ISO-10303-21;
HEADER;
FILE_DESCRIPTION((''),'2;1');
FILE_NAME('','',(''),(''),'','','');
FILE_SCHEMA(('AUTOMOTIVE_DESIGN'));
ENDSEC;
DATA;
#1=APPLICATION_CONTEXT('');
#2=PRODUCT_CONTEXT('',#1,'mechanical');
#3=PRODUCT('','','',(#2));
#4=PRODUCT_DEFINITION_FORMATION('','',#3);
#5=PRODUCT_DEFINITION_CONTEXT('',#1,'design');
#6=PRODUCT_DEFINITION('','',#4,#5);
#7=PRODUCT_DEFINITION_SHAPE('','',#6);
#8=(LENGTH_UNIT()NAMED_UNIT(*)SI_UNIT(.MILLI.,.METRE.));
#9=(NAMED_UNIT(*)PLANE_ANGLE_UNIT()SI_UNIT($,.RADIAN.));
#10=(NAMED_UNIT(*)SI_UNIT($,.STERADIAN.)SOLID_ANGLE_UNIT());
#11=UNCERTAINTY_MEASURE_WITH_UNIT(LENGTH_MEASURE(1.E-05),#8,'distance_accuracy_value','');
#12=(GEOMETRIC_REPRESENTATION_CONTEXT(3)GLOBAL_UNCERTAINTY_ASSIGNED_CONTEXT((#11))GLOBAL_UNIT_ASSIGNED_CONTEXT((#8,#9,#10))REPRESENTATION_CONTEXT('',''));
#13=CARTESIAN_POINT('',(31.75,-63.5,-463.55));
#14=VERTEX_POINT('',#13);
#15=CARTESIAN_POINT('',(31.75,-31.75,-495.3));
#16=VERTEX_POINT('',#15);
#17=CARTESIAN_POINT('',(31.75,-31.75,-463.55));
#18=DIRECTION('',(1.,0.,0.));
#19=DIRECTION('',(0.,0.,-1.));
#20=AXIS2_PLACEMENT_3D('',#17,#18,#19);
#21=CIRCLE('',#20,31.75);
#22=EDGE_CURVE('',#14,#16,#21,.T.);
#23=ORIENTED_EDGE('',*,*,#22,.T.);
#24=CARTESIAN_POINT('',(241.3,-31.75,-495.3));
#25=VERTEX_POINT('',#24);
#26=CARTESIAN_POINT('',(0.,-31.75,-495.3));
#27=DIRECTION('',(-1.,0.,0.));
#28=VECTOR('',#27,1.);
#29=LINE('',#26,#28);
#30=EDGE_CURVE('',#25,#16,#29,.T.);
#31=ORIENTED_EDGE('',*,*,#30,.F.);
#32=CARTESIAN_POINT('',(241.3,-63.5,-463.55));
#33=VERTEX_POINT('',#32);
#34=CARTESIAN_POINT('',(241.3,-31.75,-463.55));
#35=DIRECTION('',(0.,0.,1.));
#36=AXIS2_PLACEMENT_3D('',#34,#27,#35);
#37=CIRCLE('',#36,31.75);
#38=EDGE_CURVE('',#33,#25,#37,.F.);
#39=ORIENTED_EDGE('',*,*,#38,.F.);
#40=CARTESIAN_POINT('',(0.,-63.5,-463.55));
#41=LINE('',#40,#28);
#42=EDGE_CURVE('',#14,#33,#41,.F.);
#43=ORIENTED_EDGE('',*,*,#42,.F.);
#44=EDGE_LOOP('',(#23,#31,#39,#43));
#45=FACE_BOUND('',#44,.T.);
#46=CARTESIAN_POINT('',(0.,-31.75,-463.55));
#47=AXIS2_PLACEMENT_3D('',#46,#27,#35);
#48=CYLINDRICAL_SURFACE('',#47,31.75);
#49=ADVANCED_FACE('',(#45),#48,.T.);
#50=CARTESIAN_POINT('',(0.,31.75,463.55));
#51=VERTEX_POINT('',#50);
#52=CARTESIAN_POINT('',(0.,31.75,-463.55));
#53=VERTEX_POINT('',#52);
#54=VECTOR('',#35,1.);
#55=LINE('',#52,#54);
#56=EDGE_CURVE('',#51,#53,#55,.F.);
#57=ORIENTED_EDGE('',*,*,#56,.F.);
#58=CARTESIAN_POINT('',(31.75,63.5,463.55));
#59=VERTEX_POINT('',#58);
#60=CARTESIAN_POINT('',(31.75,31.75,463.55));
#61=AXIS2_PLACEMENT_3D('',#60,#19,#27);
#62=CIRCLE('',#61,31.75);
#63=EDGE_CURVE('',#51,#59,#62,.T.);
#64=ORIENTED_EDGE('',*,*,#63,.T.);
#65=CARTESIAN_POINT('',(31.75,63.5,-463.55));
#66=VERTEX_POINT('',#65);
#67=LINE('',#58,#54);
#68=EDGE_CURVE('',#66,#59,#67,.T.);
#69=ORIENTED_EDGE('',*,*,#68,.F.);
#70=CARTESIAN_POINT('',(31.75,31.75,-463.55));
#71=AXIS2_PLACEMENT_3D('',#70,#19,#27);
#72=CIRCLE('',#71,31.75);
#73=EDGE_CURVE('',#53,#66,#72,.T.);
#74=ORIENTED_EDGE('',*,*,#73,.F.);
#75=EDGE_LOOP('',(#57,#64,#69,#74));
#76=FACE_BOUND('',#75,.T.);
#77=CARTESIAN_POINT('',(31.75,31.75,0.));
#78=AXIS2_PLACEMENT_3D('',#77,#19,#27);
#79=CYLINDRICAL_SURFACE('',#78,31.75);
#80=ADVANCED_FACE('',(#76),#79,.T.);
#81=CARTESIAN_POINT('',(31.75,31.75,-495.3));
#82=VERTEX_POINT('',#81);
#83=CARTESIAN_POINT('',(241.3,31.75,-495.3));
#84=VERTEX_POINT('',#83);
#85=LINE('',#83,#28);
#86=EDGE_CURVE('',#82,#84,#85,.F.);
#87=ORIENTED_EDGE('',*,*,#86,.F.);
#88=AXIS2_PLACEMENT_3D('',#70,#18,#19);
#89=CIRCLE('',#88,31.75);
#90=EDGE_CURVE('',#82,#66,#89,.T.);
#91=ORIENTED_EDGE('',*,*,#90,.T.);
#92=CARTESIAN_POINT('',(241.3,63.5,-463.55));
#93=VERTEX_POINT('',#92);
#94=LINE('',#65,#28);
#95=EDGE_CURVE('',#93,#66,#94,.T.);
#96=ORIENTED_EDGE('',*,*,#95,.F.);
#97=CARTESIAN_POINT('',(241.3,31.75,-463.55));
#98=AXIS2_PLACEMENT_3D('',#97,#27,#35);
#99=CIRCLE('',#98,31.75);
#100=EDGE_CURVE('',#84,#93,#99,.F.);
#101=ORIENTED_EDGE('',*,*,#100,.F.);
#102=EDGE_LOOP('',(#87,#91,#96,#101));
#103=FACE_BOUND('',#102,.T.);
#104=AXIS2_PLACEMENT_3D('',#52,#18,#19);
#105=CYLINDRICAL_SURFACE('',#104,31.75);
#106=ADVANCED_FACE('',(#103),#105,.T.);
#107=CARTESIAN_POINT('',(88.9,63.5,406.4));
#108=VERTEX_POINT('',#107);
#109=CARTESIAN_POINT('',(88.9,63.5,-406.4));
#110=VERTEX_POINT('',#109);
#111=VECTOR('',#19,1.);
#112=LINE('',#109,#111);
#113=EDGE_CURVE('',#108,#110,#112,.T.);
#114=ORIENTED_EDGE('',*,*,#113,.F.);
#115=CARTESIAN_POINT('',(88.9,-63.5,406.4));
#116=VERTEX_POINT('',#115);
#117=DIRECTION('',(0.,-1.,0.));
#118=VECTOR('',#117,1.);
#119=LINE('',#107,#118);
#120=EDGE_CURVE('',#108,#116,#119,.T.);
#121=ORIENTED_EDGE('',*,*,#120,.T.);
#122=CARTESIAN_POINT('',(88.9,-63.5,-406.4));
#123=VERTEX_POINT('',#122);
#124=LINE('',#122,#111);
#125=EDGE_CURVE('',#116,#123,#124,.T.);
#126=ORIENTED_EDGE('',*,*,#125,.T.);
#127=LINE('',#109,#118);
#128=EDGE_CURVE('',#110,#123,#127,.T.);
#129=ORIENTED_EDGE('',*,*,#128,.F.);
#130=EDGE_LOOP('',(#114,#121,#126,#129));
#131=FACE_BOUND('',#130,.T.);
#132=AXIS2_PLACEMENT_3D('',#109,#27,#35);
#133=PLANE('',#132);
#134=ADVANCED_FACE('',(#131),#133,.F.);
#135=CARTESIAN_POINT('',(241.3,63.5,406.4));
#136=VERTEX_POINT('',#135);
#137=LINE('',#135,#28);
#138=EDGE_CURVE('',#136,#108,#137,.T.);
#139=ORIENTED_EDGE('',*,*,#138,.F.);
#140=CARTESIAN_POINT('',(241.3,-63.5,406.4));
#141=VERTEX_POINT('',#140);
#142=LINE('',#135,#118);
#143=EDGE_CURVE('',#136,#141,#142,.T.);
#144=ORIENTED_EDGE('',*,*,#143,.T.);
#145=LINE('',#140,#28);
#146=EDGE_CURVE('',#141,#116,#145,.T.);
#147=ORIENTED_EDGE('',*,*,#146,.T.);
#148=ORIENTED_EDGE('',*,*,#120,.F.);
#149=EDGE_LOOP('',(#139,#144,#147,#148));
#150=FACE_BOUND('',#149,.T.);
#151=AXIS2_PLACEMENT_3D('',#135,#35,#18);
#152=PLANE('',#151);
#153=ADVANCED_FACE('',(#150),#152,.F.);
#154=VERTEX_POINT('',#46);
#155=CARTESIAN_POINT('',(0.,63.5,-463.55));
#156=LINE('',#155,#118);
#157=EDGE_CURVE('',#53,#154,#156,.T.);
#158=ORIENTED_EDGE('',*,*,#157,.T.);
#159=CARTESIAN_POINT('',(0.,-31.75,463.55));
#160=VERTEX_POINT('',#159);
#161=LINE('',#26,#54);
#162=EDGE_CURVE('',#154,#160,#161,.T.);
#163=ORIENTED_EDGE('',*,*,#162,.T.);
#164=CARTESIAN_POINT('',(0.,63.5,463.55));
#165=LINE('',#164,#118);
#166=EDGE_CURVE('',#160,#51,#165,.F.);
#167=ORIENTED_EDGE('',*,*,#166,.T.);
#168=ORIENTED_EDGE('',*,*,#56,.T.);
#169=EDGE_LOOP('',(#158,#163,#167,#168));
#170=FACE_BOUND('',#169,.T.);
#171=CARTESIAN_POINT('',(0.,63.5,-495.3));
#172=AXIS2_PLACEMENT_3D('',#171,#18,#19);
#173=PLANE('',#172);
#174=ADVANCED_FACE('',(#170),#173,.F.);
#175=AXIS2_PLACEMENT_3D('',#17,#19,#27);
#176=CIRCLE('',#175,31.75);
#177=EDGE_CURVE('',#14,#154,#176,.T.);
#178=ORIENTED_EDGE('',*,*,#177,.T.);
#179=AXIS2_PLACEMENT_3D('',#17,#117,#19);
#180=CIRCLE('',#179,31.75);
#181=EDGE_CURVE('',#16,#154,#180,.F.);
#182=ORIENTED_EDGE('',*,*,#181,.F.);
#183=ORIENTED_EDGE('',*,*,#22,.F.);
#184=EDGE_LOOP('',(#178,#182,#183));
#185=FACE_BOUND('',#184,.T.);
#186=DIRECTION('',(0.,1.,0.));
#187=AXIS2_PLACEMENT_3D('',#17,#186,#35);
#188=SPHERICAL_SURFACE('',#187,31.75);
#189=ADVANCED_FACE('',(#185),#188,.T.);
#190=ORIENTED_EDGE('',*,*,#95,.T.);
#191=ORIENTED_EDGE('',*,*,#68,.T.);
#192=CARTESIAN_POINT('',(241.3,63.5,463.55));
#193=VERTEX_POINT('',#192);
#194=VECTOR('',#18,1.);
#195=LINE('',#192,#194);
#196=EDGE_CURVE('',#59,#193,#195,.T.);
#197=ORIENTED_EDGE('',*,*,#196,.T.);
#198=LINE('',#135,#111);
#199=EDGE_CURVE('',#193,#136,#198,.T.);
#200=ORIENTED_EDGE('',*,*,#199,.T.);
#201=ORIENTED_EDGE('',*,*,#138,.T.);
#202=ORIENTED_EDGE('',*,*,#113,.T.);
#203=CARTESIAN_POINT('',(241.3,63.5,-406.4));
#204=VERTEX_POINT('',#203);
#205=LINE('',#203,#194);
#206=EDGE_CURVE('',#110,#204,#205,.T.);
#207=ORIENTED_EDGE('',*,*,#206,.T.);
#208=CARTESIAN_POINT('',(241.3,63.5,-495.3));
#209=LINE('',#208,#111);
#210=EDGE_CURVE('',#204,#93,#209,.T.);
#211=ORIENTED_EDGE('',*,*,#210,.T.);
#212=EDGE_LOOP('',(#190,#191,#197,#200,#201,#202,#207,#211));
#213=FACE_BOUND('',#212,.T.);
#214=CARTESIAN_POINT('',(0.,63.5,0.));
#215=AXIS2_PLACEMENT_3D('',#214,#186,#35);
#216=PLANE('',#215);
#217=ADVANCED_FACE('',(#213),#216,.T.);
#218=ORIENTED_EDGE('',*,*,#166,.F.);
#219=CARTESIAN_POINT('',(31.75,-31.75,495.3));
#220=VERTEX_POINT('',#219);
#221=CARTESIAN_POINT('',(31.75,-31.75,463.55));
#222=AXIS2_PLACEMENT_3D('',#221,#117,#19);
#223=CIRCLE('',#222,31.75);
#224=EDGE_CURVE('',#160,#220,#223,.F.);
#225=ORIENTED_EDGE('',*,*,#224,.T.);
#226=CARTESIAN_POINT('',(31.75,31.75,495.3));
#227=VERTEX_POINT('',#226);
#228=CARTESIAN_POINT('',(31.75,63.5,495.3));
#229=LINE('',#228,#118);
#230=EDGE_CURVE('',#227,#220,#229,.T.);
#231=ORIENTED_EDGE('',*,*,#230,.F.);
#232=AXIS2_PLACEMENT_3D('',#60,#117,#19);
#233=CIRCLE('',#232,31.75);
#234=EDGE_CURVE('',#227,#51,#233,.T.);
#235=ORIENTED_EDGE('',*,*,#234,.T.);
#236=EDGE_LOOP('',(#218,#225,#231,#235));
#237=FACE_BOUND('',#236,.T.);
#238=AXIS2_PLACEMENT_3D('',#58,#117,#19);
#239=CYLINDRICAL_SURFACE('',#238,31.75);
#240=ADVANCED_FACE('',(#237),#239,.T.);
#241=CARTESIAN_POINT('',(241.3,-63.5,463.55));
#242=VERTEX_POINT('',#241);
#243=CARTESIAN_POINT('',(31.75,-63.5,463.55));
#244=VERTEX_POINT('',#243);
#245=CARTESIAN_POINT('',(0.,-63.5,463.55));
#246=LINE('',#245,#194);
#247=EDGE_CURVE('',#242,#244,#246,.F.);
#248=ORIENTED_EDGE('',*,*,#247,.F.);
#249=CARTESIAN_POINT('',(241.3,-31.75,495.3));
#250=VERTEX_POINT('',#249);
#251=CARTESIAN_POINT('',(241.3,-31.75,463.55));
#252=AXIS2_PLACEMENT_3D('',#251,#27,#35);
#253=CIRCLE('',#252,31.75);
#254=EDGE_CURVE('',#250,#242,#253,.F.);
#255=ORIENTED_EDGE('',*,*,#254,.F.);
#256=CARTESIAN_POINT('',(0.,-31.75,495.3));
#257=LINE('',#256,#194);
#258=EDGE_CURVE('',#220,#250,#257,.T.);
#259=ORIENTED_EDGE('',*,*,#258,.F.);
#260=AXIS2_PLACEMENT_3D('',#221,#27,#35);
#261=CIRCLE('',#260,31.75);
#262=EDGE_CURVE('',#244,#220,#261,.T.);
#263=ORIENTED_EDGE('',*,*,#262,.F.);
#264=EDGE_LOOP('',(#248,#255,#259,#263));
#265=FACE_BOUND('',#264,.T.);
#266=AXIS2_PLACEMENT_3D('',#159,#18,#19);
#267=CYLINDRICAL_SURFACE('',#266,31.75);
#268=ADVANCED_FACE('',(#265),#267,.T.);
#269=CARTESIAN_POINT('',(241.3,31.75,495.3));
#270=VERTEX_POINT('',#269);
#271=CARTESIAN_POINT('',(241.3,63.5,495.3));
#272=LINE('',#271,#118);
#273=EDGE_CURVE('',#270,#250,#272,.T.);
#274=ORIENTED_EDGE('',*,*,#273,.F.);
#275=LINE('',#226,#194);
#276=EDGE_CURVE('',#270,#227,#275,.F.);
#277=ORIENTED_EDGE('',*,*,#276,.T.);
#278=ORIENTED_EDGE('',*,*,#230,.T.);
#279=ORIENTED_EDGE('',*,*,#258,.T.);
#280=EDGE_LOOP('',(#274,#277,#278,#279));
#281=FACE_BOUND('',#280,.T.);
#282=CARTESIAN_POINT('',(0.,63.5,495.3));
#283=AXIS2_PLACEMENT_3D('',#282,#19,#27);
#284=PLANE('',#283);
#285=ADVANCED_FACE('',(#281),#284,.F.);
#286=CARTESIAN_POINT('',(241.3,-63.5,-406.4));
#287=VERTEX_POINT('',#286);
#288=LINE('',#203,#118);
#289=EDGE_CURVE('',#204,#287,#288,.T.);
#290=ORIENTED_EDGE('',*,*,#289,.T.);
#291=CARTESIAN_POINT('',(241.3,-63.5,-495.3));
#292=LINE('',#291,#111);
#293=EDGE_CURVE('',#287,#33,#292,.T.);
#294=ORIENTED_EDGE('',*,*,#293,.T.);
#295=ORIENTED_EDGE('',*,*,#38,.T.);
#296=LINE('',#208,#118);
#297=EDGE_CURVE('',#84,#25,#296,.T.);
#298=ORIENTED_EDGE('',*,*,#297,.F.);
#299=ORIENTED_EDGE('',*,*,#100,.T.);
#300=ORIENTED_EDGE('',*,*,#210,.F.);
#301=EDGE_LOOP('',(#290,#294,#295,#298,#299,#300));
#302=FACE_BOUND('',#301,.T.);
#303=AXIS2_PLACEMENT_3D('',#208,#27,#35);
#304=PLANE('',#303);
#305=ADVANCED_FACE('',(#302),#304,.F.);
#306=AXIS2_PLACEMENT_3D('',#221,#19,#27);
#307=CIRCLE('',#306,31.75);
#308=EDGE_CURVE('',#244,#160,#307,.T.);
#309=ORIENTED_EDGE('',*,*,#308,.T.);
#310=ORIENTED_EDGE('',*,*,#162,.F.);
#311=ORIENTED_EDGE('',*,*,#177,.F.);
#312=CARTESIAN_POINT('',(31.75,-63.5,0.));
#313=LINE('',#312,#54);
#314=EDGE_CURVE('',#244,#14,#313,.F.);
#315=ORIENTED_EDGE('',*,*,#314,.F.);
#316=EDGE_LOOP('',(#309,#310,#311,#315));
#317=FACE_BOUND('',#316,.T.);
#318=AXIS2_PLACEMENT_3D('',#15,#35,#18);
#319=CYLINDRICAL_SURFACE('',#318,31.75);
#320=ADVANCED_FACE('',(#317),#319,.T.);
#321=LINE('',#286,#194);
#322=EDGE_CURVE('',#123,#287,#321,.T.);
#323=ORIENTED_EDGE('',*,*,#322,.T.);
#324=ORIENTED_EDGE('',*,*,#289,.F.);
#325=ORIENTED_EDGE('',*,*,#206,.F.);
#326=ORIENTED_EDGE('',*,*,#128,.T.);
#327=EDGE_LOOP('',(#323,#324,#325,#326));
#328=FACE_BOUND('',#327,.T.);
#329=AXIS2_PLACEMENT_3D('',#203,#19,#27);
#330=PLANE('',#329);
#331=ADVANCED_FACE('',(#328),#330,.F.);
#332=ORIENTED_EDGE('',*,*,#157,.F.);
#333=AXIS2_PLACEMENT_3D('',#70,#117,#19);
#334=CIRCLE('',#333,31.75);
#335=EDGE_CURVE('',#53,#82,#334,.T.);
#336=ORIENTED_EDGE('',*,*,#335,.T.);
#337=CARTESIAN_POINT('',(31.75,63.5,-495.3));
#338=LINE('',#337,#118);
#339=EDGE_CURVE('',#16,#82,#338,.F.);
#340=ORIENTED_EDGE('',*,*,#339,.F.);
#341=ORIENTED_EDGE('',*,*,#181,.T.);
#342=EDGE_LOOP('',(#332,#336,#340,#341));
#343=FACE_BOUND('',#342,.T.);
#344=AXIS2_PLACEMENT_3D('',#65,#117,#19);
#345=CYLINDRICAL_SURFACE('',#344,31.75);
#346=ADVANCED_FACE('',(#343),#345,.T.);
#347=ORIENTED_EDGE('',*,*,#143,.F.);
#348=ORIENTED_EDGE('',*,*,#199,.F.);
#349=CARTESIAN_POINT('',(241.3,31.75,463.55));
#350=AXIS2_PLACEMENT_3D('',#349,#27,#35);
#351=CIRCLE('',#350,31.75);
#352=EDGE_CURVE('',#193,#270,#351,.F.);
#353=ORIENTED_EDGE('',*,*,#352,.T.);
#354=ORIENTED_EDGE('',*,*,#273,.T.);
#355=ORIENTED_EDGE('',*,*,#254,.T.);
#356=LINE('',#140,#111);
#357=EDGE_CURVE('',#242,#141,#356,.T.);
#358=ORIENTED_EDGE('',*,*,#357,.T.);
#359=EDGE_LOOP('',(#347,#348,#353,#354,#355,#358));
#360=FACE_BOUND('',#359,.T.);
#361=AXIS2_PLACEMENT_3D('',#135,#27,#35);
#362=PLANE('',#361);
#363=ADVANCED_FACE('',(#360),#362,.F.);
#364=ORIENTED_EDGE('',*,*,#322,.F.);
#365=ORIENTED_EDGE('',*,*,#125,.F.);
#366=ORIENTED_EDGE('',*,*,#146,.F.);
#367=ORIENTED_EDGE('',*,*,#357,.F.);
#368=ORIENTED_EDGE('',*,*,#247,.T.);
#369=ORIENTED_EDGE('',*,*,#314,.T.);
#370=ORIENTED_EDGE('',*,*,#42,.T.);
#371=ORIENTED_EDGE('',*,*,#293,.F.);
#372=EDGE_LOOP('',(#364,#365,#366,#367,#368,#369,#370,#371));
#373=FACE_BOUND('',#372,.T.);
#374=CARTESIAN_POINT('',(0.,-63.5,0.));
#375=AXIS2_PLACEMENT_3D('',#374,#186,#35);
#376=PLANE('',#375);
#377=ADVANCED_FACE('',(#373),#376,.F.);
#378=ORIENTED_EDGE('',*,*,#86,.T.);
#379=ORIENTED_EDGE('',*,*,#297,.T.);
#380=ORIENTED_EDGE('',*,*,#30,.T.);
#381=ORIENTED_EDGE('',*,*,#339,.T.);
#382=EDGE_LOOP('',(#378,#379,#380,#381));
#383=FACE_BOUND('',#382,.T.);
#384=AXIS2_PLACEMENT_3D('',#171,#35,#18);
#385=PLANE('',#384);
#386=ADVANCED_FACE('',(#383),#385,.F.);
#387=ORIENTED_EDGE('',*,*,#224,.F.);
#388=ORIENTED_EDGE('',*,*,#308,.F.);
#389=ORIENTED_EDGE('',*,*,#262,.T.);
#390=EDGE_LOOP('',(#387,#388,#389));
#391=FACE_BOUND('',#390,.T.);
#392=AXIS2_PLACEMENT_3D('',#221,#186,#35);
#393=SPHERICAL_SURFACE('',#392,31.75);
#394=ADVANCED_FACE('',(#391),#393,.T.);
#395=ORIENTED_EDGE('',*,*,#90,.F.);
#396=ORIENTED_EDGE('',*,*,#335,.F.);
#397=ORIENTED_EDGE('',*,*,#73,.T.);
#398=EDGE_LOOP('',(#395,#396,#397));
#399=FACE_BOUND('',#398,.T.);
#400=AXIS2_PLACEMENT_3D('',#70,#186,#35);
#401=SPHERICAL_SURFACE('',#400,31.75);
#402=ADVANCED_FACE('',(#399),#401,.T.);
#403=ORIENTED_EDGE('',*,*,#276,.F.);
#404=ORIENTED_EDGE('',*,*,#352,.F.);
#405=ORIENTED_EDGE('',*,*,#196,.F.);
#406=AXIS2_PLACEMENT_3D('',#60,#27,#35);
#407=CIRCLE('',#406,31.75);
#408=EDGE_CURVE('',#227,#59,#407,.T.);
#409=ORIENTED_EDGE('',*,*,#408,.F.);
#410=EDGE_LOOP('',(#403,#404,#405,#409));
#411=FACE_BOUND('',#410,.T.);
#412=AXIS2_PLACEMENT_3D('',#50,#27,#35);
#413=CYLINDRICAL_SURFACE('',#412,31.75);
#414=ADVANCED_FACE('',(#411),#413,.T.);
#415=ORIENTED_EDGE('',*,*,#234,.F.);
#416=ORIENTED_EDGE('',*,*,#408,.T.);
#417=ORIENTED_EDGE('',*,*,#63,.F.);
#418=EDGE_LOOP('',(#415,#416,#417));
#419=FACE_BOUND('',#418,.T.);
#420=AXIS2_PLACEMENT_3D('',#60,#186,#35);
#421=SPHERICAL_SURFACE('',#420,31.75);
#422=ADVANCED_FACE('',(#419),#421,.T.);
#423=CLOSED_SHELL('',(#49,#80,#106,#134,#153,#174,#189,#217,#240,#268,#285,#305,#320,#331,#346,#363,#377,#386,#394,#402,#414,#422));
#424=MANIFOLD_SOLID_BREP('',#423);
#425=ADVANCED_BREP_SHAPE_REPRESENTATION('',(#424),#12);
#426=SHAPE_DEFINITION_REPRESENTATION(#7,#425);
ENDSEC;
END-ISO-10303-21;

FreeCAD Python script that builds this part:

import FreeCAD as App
import Part
import Sketcher
from FreeCAD import Vector
Q = App.Units.Quantity


def edges_at(feature, points):
    """Names of the edges that pass closest to the given points."""
    edges = feature.Shape.Edges
    near = lambda p: min(range(len(edges)), key=lambda i: edges[i].distToShape(Part.Vertex(*p))[0])
    return sorted({f"Edge{near(p) + 1}" for p in points})


def add_polygon(sketch, points):
    """Adds a closed chain of lines whose ends are joined by coincident constraints."""
    first, n = sketch.GeometryCount, len(points)
    for a, b in zip(points, points[1:] + points[:1]):
        sketch.addGeometry(Part.LineSegment(App.Vector(*a, 0), App.Vector(*b, 0)), False)
    for i in range(n):
        sketch.addConstraint(Sketcher.Constraint("Coincident", first + i, 2, first + (i + 1) % n, 1))

doc = App.newDocument("Part")
params = doc.addObject("Spreadsheet::Sheet", "Params")
for row, (alias, value) in enumerate([
    ("sketch1_width", "6 in"),
    ("sketch1_height", "32 in"),
    ("sketch1_height2", "39 in"),
    ("sketch1_width2", "9.5 in"),
    ("pad1_length", "5 in"),
    ("fillet_radius", "1.25 in"),
    ("fillet2_radius", "1.25 in"),
], start=1):
    params.set(f"A{row}", alias)
    params.set(f"B{row}", "=" + value)
    params.setAlias(f"B{row}", alias)

body = doc.addObject("PartDesign::Body", "Body")

sketch1 = body.newObject("Sketcher::SketchObject", "Sketch")
sketch1.AttachmentSupport = (doc.getObject("XZ_Plane"), [""])
sketch1.MapMode = "FlatFace"
add_polygon(sketch1, [(241, 495), (241, 406), (89, 406), (89, -406), (241, -406), (241, -495), (0, -495), (0, 495)])
sketch1.addConstraint(Sketcher.Constraint("Vertical", 0))
sketch1.addConstraint(Sketcher.Constraint("Horizontal", 1))
sketch1.addConstraint(Sketcher.Constraint("Vertical", 2))
sketch1.addConstraint(Sketcher.Constraint("Horizontal", 3))
sketch1.addConstraint(Sketcher.Constraint("Vertical", 4))
sketch1.addConstraint(Sketcher.Constraint("Horizontal", 5))
sketch1.addConstraint(Sketcher.Constraint("Vertical", 6))
sketch1.addConstraint(Sketcher.Constraint("Horizontal", 7))
sketch1.addConstraint(Sketcher.Constraint("Symmetric", 5, 2, 6, 2, -1, 1))
sketch1.addConstraint(Sketcher.Constraint("Symmetric", 0, 2, 3, 2, -1))
sketch1.addConstraint(Sketcher.Constraint("DistanceX", 1, 2, 1, 1, Q("6 in")))
sketch1.addConstraint(Sketcher.Constraint("DistanceY", 2, 2, 2, 1, Q("32 in")))
sketch1.addConstraint(Sketcher.Constraint("DistanceY", 6, 1, 6, 2, Q("39 in")))
sketch1.addConstraint(Sketcher.Constraint("DistanceX", 5, 2, 5, 1, Q("9.5 in")))
sketch1.setExpression("Constraints[18]", "Params.sketch1_width")
sketch1.setExpression("Constraints[19]", "Params.sketch1_height")
sketch1.setExpression("Constraints[20]", "Params.sketch1_height2")
sketch1.setExpression("Constraints[21]", "Params.sketch1_width2")
pad1 = body.newObject("PartDesign::Pad", "Pad")
pad1.Profile = sketch1
pad1.setExpression("Length", "Params.pad1_length")
pad1.Midplane = True
doc.recompute()

fillet = body.newObject("PartDesign::Fillet", "Fillet")
fillet.Base = (pad1, edges_at(pad1, [(0, 0, -495.3), (0, 0, 495.3)]))
fillet.setExpression("Radius", "Params.fillet_radius")
doc.recompute()

fillet2 = body.newObject("PartDesign::Fillet", "Fillet001")
fillet2.Base = (fillet, edges_at(fillet, [
    (0, -63.5, 0),
    (0, 63.5, 0),
    (136.525, 63.5, -495.3),
    (136.525, -63.5, 495.3),
    (9.299, -63.5, 486.001),
    (9.299, -63.5, -486.001),
    (136.525, 63.5, 495.3),
    (9.299, 63.5, 486.001),
    (9.299, 63.5, -486.001),
    (136.525, -63.5, -495.3),
]))
fillet2.setExpression("Radius", "Params.fillet2_radius")

doc.recompute()
